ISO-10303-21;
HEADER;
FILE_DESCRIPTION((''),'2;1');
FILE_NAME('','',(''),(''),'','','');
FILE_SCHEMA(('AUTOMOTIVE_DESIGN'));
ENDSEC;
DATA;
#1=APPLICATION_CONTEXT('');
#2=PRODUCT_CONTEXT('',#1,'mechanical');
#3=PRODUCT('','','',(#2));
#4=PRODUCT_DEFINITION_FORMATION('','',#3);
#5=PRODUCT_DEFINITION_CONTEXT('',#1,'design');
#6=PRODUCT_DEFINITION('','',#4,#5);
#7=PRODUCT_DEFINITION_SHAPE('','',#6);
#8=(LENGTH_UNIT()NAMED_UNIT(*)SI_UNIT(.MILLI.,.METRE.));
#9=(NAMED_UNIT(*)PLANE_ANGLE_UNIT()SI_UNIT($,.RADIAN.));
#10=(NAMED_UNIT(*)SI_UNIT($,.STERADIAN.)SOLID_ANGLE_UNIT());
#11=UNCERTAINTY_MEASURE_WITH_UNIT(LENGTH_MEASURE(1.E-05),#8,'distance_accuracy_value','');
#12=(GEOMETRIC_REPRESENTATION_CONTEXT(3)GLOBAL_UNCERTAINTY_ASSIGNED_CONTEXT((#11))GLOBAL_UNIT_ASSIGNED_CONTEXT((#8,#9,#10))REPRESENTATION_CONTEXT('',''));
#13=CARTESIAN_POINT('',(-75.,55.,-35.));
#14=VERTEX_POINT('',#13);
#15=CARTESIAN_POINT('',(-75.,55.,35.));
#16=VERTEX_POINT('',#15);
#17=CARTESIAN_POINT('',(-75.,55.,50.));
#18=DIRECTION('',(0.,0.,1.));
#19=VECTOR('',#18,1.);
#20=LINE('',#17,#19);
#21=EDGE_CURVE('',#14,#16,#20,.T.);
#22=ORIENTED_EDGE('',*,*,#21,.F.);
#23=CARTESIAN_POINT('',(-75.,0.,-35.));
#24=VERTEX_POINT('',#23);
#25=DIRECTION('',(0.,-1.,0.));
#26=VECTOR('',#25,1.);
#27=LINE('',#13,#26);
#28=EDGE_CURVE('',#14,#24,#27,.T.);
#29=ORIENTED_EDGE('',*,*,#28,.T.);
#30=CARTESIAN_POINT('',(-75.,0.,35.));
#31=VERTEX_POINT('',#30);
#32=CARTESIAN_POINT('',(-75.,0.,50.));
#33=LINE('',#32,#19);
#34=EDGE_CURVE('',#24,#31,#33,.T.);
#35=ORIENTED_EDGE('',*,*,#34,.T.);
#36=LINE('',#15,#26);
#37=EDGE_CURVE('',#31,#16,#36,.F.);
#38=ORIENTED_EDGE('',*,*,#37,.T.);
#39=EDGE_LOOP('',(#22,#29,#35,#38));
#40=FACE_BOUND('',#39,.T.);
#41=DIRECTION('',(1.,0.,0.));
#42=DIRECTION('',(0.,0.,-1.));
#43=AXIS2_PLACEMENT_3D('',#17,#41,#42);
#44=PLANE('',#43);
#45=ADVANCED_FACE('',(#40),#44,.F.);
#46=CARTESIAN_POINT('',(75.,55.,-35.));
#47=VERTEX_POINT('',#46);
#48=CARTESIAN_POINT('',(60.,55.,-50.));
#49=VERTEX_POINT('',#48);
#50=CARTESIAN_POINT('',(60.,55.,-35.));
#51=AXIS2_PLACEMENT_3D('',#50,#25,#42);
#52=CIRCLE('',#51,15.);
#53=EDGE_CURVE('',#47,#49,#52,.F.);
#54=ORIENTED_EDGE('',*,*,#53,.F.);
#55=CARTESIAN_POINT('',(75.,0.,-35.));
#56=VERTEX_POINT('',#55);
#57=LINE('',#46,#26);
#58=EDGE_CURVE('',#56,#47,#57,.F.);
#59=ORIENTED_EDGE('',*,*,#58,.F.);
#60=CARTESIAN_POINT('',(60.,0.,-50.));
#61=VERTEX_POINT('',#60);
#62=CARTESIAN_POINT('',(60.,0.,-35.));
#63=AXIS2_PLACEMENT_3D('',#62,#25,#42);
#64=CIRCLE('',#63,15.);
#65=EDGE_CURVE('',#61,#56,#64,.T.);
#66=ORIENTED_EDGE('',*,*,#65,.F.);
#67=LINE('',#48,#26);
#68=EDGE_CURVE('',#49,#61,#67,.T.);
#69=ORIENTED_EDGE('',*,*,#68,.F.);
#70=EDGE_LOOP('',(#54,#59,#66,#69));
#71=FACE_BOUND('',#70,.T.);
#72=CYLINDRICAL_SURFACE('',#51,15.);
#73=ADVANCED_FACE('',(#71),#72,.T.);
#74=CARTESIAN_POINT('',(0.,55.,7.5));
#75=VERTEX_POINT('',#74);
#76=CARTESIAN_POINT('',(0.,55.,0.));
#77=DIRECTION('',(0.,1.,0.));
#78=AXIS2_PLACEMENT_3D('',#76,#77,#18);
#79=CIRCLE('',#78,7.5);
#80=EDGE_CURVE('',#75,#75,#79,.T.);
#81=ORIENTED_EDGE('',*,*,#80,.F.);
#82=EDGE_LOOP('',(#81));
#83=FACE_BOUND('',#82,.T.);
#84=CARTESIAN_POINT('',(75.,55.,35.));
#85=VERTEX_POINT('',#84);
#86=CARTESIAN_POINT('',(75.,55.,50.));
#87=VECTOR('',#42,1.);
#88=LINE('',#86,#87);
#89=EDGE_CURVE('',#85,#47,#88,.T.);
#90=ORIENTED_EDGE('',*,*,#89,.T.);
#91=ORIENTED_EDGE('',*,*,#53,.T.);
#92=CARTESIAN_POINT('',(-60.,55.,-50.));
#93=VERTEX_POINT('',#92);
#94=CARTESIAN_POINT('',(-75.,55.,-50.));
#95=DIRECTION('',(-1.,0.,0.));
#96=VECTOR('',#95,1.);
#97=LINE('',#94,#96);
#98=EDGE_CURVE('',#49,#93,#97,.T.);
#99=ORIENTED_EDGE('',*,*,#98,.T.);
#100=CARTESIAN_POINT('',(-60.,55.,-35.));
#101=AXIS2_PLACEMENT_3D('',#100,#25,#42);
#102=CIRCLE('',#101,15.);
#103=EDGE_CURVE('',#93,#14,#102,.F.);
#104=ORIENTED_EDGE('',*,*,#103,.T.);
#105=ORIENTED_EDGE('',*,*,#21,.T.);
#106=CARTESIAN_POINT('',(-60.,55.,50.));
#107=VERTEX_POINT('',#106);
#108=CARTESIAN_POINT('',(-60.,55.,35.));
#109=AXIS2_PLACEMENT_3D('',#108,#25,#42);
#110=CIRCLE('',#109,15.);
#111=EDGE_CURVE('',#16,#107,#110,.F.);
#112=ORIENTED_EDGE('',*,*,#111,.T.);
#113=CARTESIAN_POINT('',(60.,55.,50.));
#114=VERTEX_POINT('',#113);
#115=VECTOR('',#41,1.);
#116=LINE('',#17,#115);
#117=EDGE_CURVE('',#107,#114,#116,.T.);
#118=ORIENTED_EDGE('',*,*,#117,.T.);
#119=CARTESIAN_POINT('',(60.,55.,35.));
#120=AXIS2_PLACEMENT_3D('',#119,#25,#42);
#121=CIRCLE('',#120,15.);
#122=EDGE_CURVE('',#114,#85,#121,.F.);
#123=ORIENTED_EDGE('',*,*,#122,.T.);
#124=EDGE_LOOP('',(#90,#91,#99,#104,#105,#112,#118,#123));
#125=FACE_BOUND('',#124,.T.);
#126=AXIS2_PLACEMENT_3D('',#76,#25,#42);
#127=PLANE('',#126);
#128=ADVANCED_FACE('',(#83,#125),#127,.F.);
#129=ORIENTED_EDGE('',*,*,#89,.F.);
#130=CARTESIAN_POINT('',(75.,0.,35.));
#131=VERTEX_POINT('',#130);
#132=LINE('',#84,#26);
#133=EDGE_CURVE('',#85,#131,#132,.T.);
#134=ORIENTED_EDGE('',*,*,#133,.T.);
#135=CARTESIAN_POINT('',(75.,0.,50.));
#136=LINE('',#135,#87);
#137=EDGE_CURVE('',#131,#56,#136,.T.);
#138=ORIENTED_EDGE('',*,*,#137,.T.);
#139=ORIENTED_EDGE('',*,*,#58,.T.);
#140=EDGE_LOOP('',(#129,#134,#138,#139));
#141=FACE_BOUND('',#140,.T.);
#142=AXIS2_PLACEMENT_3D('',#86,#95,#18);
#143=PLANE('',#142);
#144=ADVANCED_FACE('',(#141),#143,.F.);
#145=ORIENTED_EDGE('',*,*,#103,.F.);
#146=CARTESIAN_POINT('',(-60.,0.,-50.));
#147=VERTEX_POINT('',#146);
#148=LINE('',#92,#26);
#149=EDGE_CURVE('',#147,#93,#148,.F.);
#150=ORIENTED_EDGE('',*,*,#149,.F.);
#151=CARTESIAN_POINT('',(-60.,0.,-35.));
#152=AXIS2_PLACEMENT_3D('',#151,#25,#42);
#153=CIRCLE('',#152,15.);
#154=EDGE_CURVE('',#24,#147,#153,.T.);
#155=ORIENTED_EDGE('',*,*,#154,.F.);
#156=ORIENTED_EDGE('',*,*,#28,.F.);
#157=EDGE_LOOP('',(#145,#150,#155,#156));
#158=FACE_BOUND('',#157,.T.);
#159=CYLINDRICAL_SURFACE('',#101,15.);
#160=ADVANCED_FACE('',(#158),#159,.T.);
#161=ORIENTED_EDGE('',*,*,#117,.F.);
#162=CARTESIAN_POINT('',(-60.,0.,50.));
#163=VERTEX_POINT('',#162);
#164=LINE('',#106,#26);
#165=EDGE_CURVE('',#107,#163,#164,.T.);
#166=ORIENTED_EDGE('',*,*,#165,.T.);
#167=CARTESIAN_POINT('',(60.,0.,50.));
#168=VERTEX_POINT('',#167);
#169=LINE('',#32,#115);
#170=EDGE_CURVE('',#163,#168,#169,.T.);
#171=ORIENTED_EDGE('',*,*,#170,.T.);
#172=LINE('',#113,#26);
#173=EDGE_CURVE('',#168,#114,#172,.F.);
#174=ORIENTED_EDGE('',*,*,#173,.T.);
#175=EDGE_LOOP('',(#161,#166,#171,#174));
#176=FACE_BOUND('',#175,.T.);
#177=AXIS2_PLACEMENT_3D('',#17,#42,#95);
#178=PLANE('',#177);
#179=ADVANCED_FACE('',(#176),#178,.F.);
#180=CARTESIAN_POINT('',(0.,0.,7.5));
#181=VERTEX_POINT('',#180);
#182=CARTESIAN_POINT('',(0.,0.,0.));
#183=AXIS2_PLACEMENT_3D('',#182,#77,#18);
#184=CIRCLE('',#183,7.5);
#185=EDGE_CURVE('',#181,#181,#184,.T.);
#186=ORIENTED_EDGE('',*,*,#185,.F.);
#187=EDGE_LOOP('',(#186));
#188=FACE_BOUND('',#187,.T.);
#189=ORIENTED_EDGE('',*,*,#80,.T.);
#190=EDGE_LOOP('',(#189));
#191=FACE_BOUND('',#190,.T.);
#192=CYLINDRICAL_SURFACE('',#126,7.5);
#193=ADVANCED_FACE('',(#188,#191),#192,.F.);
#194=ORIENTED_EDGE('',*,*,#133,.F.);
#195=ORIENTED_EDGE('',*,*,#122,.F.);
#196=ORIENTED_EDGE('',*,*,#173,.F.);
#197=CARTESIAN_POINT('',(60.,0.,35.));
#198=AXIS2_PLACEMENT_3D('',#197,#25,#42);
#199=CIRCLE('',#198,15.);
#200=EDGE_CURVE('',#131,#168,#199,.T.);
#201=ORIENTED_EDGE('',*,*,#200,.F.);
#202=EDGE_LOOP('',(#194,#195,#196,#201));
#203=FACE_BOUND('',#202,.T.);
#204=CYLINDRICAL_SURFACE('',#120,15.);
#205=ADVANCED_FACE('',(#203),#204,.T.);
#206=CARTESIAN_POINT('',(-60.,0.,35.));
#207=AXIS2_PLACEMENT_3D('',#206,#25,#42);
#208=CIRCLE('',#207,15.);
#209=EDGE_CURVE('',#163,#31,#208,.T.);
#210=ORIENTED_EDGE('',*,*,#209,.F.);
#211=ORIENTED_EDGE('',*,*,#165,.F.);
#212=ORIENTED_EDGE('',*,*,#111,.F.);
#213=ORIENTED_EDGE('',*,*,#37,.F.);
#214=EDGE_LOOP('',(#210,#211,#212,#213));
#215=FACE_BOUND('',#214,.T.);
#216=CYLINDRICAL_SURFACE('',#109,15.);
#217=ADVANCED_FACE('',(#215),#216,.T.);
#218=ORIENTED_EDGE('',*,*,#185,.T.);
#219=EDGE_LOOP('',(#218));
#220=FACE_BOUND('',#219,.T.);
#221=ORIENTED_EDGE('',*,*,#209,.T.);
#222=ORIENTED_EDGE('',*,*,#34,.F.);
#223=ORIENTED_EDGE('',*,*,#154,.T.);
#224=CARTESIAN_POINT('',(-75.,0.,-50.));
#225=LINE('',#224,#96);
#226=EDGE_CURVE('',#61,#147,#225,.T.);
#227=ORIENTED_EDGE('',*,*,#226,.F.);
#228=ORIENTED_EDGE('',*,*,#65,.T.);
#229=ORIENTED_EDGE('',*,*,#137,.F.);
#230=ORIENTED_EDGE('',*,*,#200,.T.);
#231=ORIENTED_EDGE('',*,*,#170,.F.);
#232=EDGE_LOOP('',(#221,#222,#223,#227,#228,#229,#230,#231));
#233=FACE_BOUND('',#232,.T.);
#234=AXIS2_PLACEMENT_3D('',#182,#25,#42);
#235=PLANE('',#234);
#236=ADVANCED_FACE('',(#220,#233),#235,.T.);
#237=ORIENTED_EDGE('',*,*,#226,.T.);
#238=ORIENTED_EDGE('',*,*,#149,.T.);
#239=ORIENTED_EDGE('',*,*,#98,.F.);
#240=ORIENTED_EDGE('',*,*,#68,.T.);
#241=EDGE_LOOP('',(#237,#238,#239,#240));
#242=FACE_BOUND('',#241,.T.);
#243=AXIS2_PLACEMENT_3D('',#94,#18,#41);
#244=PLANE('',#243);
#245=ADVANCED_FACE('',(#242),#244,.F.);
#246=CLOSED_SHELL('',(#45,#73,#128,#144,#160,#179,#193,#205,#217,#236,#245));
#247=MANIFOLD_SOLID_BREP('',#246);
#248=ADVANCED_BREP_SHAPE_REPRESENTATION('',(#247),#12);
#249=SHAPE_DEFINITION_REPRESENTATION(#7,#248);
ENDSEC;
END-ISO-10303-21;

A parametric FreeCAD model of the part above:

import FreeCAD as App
import Part
import Sketcher
Q = App.Units.Quantity


def edges_at(feature, points):
    """Names of the edges that pass closest to the given points."""
    edges = feature.Shape.Edges
    near = lambda p: min(range(len(edges)), key=lambda i: edges[i].distToShape(Part.Vertex(*p))[0])
    return sorted({f"Edge{near(p) + 1}" for p in points})


def add_polygon(sketch, points):
    """Adds a closed chain of lines whose ends are joined by coincident constraints."""
    first, n = sketch.GeometryCount, len(points)
    for a, b in zip(points, points[1:] + points[:1]):
        sketch.addGeometry(Part.LineSegment(App.Vector(*a, 0), App.Vector(*b, 0)), False)
    for i in range(n):
        sketch.addConstraint(Sketcher.Constraint("Coincident", first + i, 2, first + (i + 1) % n, 1))

doc = App.newDocument("Part")
body = doc.addObject("PartDesign::Body", "Body")

sketch1 = body.newObject("Sketcher::SketchObject", "Sketch")
sketch1.AttachmentSupport = (doc.getObject("XZ_Plane"), [""])
sketch1.MapMode = "FlatFace"
add_polygon(sketch1, [(-75, -50), (-75, 50), (75, 50), (75, -50)])
sketch1.addGeometry(Part.Circle(App.Vector(0, 0, 0), App.Vector(0, 0, 1), 7.5), False)
sketch1.addConstraint([
    Sketcher.Constraint("Vertical", 0),
    Sketcher.Constraint("Horizontal", 1),
    Sketcher.Constraint("Vertical", 2),
    Sketcher.Constraint("Horizontal", 3),
    Sketcher.Constraint("Coincident", 4, 3, -1, 1),
    Sketcher.Constraint("Symmetric", 0, 2, 2, 2, -1, 1),
    Sketcher.Constraint("Diameter", 4, Q("15 mm")),
    Sketcher.Constraint("DistanceX", 1, 1, 1, 2, Q("150 mm")),
    Sketcher.Constraint("DistanceY", 0, 1, 0, 2, Q("100 mm")),
])
pad1 = body.newObject("PartDesign::Pad", "Pad")
pad1.Profile = sketch1
pad1.Length = 55
pad1.Reversed = True
doc.recompute()

fillet = body.newObject("PartDesign::Fillet", "Fillet")
fillet.Base = (pad1, edges_at(pad1, [
    (75, 27.5, 50),
    (-75, 27.5, 50),
    (-75, 27.5, -50),
    (75, 27.5, -50),
]))
fillet.Radius = 15

doc.recompute()
